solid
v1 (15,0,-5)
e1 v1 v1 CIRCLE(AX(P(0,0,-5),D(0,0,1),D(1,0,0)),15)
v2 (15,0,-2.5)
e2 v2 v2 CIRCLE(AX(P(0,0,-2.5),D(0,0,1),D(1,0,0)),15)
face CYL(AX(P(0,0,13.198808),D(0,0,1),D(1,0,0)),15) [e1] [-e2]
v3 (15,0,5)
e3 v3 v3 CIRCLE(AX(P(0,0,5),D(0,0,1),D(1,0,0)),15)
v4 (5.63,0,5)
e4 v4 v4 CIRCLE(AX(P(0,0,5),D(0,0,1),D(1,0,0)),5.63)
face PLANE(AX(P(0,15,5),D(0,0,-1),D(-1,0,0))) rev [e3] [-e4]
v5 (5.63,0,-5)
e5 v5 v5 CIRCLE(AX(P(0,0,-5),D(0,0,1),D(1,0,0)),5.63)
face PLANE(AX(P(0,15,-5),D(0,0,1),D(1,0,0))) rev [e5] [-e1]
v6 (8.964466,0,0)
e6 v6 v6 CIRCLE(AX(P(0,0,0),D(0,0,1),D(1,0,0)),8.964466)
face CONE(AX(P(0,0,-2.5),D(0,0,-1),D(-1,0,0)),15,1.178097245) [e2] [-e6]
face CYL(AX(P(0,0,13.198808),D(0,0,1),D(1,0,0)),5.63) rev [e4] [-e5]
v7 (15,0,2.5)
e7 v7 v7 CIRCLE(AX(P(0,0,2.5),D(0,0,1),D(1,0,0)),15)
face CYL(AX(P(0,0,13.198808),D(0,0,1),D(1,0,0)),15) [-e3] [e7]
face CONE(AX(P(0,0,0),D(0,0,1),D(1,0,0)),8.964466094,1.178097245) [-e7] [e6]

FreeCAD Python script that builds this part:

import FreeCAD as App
import Part
import Sketcher

V = App.Vector
Q = App.Units.Quantity


def add_polygon(sketch, points):
    """Adds a closed chain of lines whose ends are joined by coincident constraints."""
    first, n = sketch.GeometryCount, len(points)
    for a, b in zip(points, points[1:] + points[:1]):
        sketch.addGeometry(Part.LineSegment(App.Vector(*a, 0), App.Vector(*b, 0)), False)
    for i in range(n):
        sketch.addConstraint(Sketcher.Constraint("Coincident", first + i, 2, first + (i + 1) % n, 1))

doc = App.newDocument("Part")
body = doc.addObject("PartDesign::Body", "Body")

# Sketch on YZ plane
sketch1 = doc.addObject("Sketcher::SketchObject", "Sketch")
body.addObject(sketch1)
sketch1.AttachmentSupport = (doc.YZ_Plane, [""])
sketch1.MapMode = "FlatFace"
add_polygon(sketch1, [(8.964466, 0), (15, 2.5), (15, 5), (5.63, 5), (5.63, -5), (15, -5), (15, -2.5)])  # lines 0-6
sketch1.addConstraint([
    Sketcher.Constraint("Vertical", 1),
    Sketcher.Constraint("Horizontal", 2),
    Sketcher.Constraint("Vertical", 3),
    Sketcher.Constraint("Horizontal", 4),
    Sketcher.Constraint("Vertical", 5),
    Sketcher.Constraint("Symmetric", 1, 2, 4, 2, -1),
    Sketcher.Constraint("PointOnObject", 6, 2, -1),
    Sketcher.Constraint("Equal", 1, 5),
    Sketcher.Constraint("DistanceY", 3, 2, 3, 1, 10.0),
    Sketcher.Constraint("DistanceY", 1, 1, 1, 2, 2.5),
    Sketcher.Constraint("DistanceX", -1, 1, 0, 2, 15.0),
    Sketcher.Constraint("Angle", 0, Q("22.5 deg")),
    Sketcher.Constraint("DistanceX", 2, 2, 2, 1, 9.37),
])
revolution = doc.addObject("PartDesign::Revolution", "Revolution")
body.addObject(revolution)
revolution.Profile = sketch1
revolution.ReferenceAxis = (sketch1, ["V_Axis"])
revolution.Angle = 360

doc.recompute()
